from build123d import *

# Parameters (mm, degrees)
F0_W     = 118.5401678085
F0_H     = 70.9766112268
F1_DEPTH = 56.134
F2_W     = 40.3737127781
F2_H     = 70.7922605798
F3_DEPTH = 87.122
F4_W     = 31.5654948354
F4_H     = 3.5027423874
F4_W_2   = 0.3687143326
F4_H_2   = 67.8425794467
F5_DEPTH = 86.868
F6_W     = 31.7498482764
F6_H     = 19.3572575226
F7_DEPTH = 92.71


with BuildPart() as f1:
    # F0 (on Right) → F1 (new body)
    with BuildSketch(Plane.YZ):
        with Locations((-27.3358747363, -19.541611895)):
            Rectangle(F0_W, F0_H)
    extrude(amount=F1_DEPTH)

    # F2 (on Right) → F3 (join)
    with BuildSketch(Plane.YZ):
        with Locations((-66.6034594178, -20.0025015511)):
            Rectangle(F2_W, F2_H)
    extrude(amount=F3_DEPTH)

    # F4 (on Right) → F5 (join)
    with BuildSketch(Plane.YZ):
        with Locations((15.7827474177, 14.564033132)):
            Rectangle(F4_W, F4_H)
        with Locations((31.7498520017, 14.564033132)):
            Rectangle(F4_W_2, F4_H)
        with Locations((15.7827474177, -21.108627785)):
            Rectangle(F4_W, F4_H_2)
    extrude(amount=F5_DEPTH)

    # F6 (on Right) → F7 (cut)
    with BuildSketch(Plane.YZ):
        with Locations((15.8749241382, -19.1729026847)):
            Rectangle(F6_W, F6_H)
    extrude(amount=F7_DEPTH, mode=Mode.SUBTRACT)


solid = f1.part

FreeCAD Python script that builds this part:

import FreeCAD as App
import Part
import Sketcher
from FreeCAD import Vector
Q = App.Units.Quantity


def add_polygon(sketch, points):
    """Adds a closed chain of lines whose ends are joined by coincident constraints."""
    first, n = sketch.GeometryCount, len(points)
    for a, b in zip(points, points[1:] + points[:1]):
        sketch.addGeometry(Part.LineSegment(App.Vector(*a, 0), App.Vector(*b, 0)), False)
    for i in range(n):
        sketch.addConstraint(Sketcher.Constraint("Coincident", first + i, 2, first + (i + 1) % n, 1))

doc = App.newDocument("Part")
body = doc.addObject("PartDesign::Body", "Body")

# Sketch on YZ plane
sketch1 = body.newObject("Sketcher::SketchObject", "Sketch")
sketch1.AttachmentSupport = (doc.getObject("YZ_Plane"), [""])
sketch1.MapMode = "FlatFace"
add_polygon(sketch1, [(-86.605959, 15.946694), (-86.605959, -55.029918), (31.934209, -55.029918), (31.934209, 15.946694)])  # lines 0-3
sketch1.addConstraint([
    Sketcher.Constraint("Vertical", 0),
    Sketcher.Constraint("Horizontal", 1),
    Sketcher.Constraint("Vertical", 2),
    Sketcher.Constraint("Horizontal", 3),
    Sketcher.Constraint("DistanceY", 0, 2, 0, 1, 70.976611),
    Sketcher.Constraint("DistanceX", 1, 1, 1, 2, 118.540168),
    Sketcher.Constraint("DistanceX", 0, 2, -1, 1, 86.605959),
    Sketcher.Constraint("DistanceY", 0, 2, -1, 1, 55.029918),
])
pad1 = body.newObject("PartDesign::Pad", "Pad")
pad1.Profile = sketch1
pad1.Length = Q("2.21 in")

# Sketch on YZ plane
sketch2 = body.newObject("Sketcher::SketchObject", "Sketch001")
sketch2.AttachmentSupport = (doc.getObject("YZ_Plane"), [""])
sketch2.MapMode = "FlatFace"
add_polygon(sketch2, [(-86.790316, 15.393629), (-86.790316, -55.398632), (-46.416603, -55.398632), (-46.416603, 15.393629)])  # lines 0-3
sketch2.addConstraint([
    Sketcher.Constraint("Vertical", 0),
    Sketcher.Constraint("Horizontal", 1),
    Sketcher.Constraint("Vertical", 2),
    Sketcher.Constraint("Horizontal", 3),
    Sketcher.Constraint("DistanceY", 0, 2, 0, 1, 70.792261),
    Sketcher.Constraint("DistanceX", 1, 1, 1, 2, 40.373713),
    Sketcher.Constraint("DistanceY", 0, 2, -1, 1, 55.398632),
    Sketcher.Constraint("DistanceX", 0, 2, -1, 1, 86.790316),
])
pad2 = body.newObject("PartDesign::Pad", "Pad001")
pad2.Profile = sketch2
pad2.Length = Q("3.43 in")

# Sketch on YZ plane
sketch3 = body.newObject("Sketcher::SketchObject", "Sketch002")
sketch3.AttachmentSupport = (doc.getObject("YZ_Plane"), [""])
sketch3.MapMode = "FlatFace"
add_polygon(sketch3, [(0, 16.315404), (0, -55.029918), (31.565495, -55.029918), (31.565495, 12.812662), (31.934209, 12.812662), (31.934209, 16.315404)])  # lines 0-5
sketch3.addConstraint([
    Sketcher.Constraint("Vertical", 0),
    Sketcher.Constraint("Horizontal", 1),
    Sketcher.Constraint("Vertical", 2),
    Sketcher.Constraint("Horizontal", 3),
    Sketcher.Constraint("Vertical", 4),
    Sketcher.Constraint("Horizontal", 5),
    Sketcher.Constraint("PointOnObject", 0, 2, -2),
    Sketcher.Constraint("DistanceX", 5, 2, 5, 1, 31.934209),
    Sketcher.Constraint("DistanceY", 0, 2, 0, 1, 71.345322),
    Sketcher.Constraint("DistanceY", 2, 1, 2, 2, 67.842579),
    Sketcher.Constraint("DistanceX", 1, 1, 1, 2, 31.565495),
    Sketcher.Constraint("DistanceY", -1, 1, 2, 2, 12.812662),
])
pad3 = body.newObject("PartDesign::Pad", "Pad002")
pad3.Profile = sketch3
pad3.Length = Q("3.42 in")

# Sketch on YZ plane
sketch4 = body.newObject("Sketcher::SketchObject", "Sketch003")
sketch4.AttachmentSupport = (doc.getObject("YZ_Plane"), [""])
sketch4.MapMode = "FlatFace"
add_polygon(sketch4, [(0, -9.494274), (0, -28.851531), (31.749848, -28.851531), (31.749848, -9.494274)])  # lines 0-3
sketch4.addConstraint([
    Sketcher.Constraint("Vertical", 0),
    Sketcher.Constraint("Horizontal", 1),
    Sketcher.Constraint("Vertical", 2),
    Sketcher.Constraint("Horizontal", 3),
    Sketcher.Constraint("PointOnObject", 0, 2, -2),
    Sketcher.Constraint("DistanceX", 1, 1, 1, 2, 31.749848),
    Sketcher.Constraint("DistanceY", 0, 2, 0, 1, 19.357258),
    Sketcher.Constraint("DistanceY", 0, 2, -1, 1, 28.851531),
])
pocket1 = body.newObject("PartDesign::Pocket", "Pocket")
pocket1.Profile = sketch4
pocket1.Length = Q("3.65 in")
pocket1.Reversed = True

doc.recompute()
